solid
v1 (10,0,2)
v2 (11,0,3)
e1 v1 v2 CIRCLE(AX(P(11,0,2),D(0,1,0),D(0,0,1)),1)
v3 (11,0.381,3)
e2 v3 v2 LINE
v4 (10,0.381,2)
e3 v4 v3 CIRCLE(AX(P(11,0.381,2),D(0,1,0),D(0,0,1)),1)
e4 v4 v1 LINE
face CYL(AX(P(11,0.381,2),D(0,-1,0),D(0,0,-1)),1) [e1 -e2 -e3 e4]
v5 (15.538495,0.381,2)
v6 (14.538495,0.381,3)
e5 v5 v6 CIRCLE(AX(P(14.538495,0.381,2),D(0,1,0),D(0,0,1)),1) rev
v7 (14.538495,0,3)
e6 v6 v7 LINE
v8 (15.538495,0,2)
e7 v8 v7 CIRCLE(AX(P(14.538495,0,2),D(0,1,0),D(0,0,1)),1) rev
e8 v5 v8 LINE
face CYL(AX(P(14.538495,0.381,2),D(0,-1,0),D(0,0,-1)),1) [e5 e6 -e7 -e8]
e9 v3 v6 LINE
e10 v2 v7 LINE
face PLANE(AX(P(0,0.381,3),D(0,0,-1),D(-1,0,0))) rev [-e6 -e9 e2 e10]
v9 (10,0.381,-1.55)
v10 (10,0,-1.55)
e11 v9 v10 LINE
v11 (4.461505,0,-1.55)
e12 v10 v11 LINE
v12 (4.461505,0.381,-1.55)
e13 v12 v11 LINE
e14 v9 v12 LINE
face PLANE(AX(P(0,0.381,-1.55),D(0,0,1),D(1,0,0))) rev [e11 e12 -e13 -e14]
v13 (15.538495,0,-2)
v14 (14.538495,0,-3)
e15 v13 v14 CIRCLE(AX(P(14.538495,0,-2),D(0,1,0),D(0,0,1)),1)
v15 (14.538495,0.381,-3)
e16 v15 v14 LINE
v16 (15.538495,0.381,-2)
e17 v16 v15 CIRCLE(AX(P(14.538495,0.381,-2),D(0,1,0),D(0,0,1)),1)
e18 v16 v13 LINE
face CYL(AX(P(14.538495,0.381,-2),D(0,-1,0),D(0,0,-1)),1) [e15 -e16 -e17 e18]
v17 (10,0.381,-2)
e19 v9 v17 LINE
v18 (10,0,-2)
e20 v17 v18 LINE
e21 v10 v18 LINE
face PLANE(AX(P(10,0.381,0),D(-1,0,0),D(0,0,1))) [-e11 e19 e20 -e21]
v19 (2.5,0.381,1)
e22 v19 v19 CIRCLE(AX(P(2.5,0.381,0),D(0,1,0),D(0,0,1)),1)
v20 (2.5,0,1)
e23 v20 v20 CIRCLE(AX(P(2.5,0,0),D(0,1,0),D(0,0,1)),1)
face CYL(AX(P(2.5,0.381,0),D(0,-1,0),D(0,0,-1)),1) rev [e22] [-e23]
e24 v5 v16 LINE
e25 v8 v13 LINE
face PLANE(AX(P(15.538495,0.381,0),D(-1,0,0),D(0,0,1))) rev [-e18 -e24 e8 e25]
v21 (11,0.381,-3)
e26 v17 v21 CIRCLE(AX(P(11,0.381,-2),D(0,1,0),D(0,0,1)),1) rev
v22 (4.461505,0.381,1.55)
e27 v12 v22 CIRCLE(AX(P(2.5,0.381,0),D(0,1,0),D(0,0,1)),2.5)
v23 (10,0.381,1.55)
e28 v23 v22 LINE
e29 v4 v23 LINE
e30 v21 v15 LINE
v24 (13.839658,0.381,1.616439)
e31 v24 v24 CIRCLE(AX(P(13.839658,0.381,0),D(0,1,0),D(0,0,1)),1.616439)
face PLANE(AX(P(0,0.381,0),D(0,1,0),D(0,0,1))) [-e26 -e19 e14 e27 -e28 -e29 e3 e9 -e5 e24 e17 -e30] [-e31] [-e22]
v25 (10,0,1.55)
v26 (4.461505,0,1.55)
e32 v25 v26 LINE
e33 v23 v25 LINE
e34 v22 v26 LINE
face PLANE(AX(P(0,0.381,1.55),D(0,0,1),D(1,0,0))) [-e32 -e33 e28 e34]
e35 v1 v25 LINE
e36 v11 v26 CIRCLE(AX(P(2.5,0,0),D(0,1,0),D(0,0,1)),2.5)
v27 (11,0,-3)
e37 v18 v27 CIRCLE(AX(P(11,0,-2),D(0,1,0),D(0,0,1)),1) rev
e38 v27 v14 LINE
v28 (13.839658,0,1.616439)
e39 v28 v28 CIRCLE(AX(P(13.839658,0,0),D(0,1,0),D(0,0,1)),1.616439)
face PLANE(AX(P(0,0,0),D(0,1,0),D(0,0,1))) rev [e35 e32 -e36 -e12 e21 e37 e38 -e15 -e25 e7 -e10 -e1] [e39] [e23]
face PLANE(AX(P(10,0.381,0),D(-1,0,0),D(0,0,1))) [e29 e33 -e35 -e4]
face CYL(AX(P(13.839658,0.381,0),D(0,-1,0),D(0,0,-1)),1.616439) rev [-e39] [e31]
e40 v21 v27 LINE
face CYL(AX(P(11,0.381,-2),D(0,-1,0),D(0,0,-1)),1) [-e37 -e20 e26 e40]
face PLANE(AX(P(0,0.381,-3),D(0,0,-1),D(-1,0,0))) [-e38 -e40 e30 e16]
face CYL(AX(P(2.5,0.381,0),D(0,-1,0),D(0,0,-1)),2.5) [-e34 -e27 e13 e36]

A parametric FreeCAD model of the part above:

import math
import FreeCAD as App
import Part
import Sketcher

V = App.Vector
Q = App.Units.Quantity

doc = App.newDocument("Part")
body = doc.addObject("PartDesign::Body", "Body")

sketch1 = body.newObject("Sketcher::SketchObject", "Sketch")
sketch1.AttachmentSupport = (doc.getObject("XZ_Plane"), [""])
sketch1.MapMode = "FlatFace"
sketch1.addGeometry([
    Part.LineSegment(V(4.46, 1.55, 0), V(10, 1.55, 0)),
    Part.LineSegment(V(10, 1.55, 0), V(10, 2, 0)),
    Part.ArcOfCircle(Part.Circle(V(11, 2, 0), V(0, 0, 1), 1), math.radians(90), math.radians(180)),
    Part.LineSegment(V(11, 3, 0), V(14.54, 3, 0)),
    Part.ArcOfCircle(Part.Circle(V(14.54, 2, 0), V(0, 0, 1), 1), math.radians(0), math.radians(90)),
    Part.LineSegment(V(15.54, 2, 0), V(15.54, -2, 0)),
    Part.ArcOfCircle(Part.Circle(V(14.54, -2, 0), V(0, 0, 1), 1), math.radians(-90), math.radians(0)),
    Part.LineSegment(V(14.54, -3, 0), V(11, -3, 0)),
    Part.ArcOfCircle(Part.Circle(V(11, -2, 0), V(0, 0, 1), 1), math.radians(-180), math.radians(-90)),
    Part.LineSegment(V(10, -2, 0), V(10, -1.55, 0)),
    Part.LineSegment(V(10, -1.55, 0), V(4.46, -1.55, 0)),
    Part.ArcOfCircle(Part.Circle(V(2.5, 0, 0), V(0, 0, 1), 2.5), math.radians(38), math.radians(322)),
    Part.Circle(V(2.5, 0, 0), V(0, 0, 1), 1),
    Part.Circle(V(13.84, 0, 0), V(0, 0, 1), 1.62),
], False)
sketch1.addConstraint([
    Sketcher.Constraint("Coincident", 0, 2, 1, 1),
    Sketcher.Constraint("Tangent", 1, 2, 2, 2),
    Sketcher.Constraint("Tangent", 2, 1, 3, 1),
    Sketcher.Constraint("Tangent", 3, 2, 4, 2),
    Sketcher.Constraint("Tangent", 4, 1, 5, 1),
    Sketcher.Constraint("Tangent", 5, 2, 6, 2),
    Sketcher.Constraint("Tangent", 6, 1, 7, 1),
    Sketcher.Constraint("Tangent", 7, 2, 8, 2),
    Sketcher.Constraint("Tangent", 8, 1, 9, 1),
    Sketcher.Constraint("Coincident", 9, 2, 10, 1),
    Sketcher.Constraint("Coincident", 10, 2, 11, 2),
    Sketcher.Constraint("Coincident", 11, 1, 0, 1),
    Sketcher.Constraint("Horizontal", 0),
    Sketcher.Constraint("Vertical", 1),
    Sketcher.Constraint("Horizontal", 3),
    Sketcher.Constraint("Vertical", 5),
    Sketcher.Constraint("Horizontal", 7),
    Sketcher.Constraint("Vertical", 9),
    Sketcher.Constraint("Horizontal", 10),
    Sketcher.Constraint("Coincident", 12, 3, 11, 3),
    Sketcher.Constraint("Equal", 2, 4),
    Sketcher.Constraint("Equal", 4, 6),
    Sketcher.Constraint("Equal", 6, 8),
    Sketcher.Constraint("Equal", 8, 12),
    Sketcher.Constraint("Symmetric", 2, 3, 8, 3, -1),
    Sketcher.Constraint("Symmetric", 10, 2, 11, 1, -1),
    Sketcher.Constraint("PointOnObject", 13, 3, -1),
    Sketcher.Constraint("Diameter", 12, Q("2 mm")),
    Sketcher.Constraint("Radius", 11, Q("2.5 mm")),
    Sketcher.Constraint("DistanceY", 5, 2, 5, 1, Q("4 mm")),
    Sketcher.Constraint("DistanceX", -1, 1, 2, 3, Q("11 mm")),
    Sketcher.Constraint("DistanceY", 1, 1, 1, 2, Q("0.45 mm")),
    Sketcher.Constraint("DistanceX", -1, 1, 11, 3, Q("2.5 mm")),
    Sketcher.Constraint("Diameter", 13, Q("3.232878 mm")),
    Sketcher.Constraint("DistanceX", 3, 1, 3, 2, Q("3.538495 mm")),
    Sketcher.Constraint("DistanceX", -1, 1, 13, 3, Q("13.839658 mm")),
])
pad1 = body.newObject("PartDesign::Pad", "Pad")
pad1.Profile = sketch1
pad1.Length = 0.381
pad1.Reversed = True

doc.recompute()
